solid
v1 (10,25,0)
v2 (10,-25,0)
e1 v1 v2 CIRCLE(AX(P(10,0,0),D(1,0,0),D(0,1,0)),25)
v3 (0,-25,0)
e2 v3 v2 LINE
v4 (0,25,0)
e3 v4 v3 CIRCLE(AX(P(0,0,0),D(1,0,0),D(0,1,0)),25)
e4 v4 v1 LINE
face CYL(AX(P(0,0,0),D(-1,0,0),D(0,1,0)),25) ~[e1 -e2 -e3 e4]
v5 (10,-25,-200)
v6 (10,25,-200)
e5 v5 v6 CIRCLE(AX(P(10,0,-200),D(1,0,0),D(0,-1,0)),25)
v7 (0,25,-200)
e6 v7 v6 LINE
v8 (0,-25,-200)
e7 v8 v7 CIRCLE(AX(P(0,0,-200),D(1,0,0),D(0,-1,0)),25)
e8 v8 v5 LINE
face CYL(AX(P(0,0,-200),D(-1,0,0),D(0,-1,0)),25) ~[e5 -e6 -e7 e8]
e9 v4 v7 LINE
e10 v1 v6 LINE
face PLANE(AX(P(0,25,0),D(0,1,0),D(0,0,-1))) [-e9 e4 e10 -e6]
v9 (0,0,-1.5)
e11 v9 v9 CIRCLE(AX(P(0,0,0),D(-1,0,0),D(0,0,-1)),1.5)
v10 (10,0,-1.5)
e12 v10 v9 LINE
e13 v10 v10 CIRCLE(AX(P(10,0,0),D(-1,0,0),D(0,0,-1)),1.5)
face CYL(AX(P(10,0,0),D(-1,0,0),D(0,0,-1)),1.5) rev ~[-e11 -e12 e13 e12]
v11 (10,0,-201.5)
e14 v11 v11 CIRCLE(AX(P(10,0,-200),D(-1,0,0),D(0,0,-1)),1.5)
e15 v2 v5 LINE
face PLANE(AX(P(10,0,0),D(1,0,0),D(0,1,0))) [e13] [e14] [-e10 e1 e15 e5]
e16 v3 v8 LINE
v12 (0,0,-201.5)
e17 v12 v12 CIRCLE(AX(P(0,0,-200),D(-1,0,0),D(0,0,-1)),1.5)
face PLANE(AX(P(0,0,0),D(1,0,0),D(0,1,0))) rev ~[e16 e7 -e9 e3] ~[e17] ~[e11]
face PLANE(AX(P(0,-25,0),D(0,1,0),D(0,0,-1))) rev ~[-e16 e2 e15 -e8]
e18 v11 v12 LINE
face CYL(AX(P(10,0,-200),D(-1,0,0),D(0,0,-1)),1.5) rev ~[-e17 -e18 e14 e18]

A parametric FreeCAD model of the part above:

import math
import FreeCAD as App
import Part
import Sketcher
from FreeCAD import Vector
Q = App.Units.Quantity

doc = App.newDocument("Part")
params = doc.addObject("Spreadsheet::Sheet", "Params")
for row, (alias, value) in enumerate([
    ("sketch1_radius", "25 mm"),
    ("sketch1_height", "200 mm"),
    ("pad1_length", "10 mm"),
    ("sketch2_diameter", "3 mm"),
    ("hole_diameter", "3 mm"),
], start=1):
    params.set(f"A{row}", alias)
    params.set(f"B{row}", "=" + value)
    params.setAlias(f"B{row}", alias)

body = doc.addObject("PartDesign::Body", "Body")

# Sketch on YZ plane
sketch1 = body.newObject("Sketcher::SketchObject", "Sketch")
sketch1.AttachmentSupport = (doc.getObject("YZ_Plane"), [""])
sketch1.MapMode = "FlatFace"
sketch1.addGeometry([
    Part.LineSegment(Vector(25, -200, 0), Vector(25, 0, 0)),
    Part.ArcOfCircle(Part.Circle(Vector(0, 0, 0), Vector(0, 0, 1), 25), math.radians(0), math.radians(180)),
    Part.LineSegment(Vector(-25, 0, 0), Vector(-25, -200, 0)),
    Part.ArcOfCircle(Part.Circle(Vector(0, -200, 0), Vector(0, 0, 1), 25), math.radians(180), math.radians(360)),
], False)
sketch1.addConstraint([
    Sketcher.Constraint("Tangent", 0, 2, 1, 1),
    Sketcher.Constraint("Tangent", 1, 2, 2, 1),
    Sketcher.Constraint("Tangent", 2, 2, 3, 1),
    Sketcher.Constraint("Tangent", 3, 2, 0, 1),
    Sketcher.Constraint("Vertical", 0),
    Sketcher.Constraint("Vertical", 2),
    Sketcher.Constraint("Coincident", 1, 3, -1, 1),
    Sketcher.Constraint("Radius", 1, Q("25 mm")),
    Sketcher.Constraint("DistanceY", 0, 1, 0, 2, Q("200 mm")),
])
sketch1.setExpression("Constraints[7]", "Params.sketch1_radius")
sketch1.setExpression("Constraints[8]", "Params.sketch1_height")
pad1 = body.newObject("PartDesign::Pad", "Pad")
pad1.Profile = sketch1
pad1.setExpression("Length", "Params.pad1_length")

# Sketch on YZ plane
sketch2 = body.newObject("Sketcher::SketchObject", "Sketch001")
sketch2.AttachmentSupport = (doc.getObject("YZ_Plane"), [""])
sketch2.MapMode = "FlatFace"
sketch2.AttachmentOffset = App.Placement(Vector(0, 0, 10), App.Rotation())
sketch2.addGeometry([
    Part.Circle(Vector(0, 0, 0), Vector(0, 0, 1), 1.5),
    Part.Circle(Vector(0, -200, 0), Vector(0, 0, 1), 1.5),
], False)
sketch2.addConstraint([
    Sketcher.Constraint("Coincident", 0, 3, -1, 1),
    Sketcher.Constraint("Equal", 0, 1),
    Sketcher.Constraint("PointOnObject", 1, 3, -2),
    Sketcher.Constraint("Diameter", 0, Q("3 mm")),
    Sketcher.Constraint("DistanceY", 1, 3, -1, 1, Q("200 mm")),
])
sketch2.setExpression("Constraints[3]", "Params.sketch2_diameter")
doc.recompute()
hole = body.newObject("PartDesign::Hole", "Hole")
hole.Profile = sketch2
hole.ThreadType = "None"
hole.setExpression("Diameter", "Params.hole_diameter")
hole.DepthType = "ThroughAll"

doc.recompute()
